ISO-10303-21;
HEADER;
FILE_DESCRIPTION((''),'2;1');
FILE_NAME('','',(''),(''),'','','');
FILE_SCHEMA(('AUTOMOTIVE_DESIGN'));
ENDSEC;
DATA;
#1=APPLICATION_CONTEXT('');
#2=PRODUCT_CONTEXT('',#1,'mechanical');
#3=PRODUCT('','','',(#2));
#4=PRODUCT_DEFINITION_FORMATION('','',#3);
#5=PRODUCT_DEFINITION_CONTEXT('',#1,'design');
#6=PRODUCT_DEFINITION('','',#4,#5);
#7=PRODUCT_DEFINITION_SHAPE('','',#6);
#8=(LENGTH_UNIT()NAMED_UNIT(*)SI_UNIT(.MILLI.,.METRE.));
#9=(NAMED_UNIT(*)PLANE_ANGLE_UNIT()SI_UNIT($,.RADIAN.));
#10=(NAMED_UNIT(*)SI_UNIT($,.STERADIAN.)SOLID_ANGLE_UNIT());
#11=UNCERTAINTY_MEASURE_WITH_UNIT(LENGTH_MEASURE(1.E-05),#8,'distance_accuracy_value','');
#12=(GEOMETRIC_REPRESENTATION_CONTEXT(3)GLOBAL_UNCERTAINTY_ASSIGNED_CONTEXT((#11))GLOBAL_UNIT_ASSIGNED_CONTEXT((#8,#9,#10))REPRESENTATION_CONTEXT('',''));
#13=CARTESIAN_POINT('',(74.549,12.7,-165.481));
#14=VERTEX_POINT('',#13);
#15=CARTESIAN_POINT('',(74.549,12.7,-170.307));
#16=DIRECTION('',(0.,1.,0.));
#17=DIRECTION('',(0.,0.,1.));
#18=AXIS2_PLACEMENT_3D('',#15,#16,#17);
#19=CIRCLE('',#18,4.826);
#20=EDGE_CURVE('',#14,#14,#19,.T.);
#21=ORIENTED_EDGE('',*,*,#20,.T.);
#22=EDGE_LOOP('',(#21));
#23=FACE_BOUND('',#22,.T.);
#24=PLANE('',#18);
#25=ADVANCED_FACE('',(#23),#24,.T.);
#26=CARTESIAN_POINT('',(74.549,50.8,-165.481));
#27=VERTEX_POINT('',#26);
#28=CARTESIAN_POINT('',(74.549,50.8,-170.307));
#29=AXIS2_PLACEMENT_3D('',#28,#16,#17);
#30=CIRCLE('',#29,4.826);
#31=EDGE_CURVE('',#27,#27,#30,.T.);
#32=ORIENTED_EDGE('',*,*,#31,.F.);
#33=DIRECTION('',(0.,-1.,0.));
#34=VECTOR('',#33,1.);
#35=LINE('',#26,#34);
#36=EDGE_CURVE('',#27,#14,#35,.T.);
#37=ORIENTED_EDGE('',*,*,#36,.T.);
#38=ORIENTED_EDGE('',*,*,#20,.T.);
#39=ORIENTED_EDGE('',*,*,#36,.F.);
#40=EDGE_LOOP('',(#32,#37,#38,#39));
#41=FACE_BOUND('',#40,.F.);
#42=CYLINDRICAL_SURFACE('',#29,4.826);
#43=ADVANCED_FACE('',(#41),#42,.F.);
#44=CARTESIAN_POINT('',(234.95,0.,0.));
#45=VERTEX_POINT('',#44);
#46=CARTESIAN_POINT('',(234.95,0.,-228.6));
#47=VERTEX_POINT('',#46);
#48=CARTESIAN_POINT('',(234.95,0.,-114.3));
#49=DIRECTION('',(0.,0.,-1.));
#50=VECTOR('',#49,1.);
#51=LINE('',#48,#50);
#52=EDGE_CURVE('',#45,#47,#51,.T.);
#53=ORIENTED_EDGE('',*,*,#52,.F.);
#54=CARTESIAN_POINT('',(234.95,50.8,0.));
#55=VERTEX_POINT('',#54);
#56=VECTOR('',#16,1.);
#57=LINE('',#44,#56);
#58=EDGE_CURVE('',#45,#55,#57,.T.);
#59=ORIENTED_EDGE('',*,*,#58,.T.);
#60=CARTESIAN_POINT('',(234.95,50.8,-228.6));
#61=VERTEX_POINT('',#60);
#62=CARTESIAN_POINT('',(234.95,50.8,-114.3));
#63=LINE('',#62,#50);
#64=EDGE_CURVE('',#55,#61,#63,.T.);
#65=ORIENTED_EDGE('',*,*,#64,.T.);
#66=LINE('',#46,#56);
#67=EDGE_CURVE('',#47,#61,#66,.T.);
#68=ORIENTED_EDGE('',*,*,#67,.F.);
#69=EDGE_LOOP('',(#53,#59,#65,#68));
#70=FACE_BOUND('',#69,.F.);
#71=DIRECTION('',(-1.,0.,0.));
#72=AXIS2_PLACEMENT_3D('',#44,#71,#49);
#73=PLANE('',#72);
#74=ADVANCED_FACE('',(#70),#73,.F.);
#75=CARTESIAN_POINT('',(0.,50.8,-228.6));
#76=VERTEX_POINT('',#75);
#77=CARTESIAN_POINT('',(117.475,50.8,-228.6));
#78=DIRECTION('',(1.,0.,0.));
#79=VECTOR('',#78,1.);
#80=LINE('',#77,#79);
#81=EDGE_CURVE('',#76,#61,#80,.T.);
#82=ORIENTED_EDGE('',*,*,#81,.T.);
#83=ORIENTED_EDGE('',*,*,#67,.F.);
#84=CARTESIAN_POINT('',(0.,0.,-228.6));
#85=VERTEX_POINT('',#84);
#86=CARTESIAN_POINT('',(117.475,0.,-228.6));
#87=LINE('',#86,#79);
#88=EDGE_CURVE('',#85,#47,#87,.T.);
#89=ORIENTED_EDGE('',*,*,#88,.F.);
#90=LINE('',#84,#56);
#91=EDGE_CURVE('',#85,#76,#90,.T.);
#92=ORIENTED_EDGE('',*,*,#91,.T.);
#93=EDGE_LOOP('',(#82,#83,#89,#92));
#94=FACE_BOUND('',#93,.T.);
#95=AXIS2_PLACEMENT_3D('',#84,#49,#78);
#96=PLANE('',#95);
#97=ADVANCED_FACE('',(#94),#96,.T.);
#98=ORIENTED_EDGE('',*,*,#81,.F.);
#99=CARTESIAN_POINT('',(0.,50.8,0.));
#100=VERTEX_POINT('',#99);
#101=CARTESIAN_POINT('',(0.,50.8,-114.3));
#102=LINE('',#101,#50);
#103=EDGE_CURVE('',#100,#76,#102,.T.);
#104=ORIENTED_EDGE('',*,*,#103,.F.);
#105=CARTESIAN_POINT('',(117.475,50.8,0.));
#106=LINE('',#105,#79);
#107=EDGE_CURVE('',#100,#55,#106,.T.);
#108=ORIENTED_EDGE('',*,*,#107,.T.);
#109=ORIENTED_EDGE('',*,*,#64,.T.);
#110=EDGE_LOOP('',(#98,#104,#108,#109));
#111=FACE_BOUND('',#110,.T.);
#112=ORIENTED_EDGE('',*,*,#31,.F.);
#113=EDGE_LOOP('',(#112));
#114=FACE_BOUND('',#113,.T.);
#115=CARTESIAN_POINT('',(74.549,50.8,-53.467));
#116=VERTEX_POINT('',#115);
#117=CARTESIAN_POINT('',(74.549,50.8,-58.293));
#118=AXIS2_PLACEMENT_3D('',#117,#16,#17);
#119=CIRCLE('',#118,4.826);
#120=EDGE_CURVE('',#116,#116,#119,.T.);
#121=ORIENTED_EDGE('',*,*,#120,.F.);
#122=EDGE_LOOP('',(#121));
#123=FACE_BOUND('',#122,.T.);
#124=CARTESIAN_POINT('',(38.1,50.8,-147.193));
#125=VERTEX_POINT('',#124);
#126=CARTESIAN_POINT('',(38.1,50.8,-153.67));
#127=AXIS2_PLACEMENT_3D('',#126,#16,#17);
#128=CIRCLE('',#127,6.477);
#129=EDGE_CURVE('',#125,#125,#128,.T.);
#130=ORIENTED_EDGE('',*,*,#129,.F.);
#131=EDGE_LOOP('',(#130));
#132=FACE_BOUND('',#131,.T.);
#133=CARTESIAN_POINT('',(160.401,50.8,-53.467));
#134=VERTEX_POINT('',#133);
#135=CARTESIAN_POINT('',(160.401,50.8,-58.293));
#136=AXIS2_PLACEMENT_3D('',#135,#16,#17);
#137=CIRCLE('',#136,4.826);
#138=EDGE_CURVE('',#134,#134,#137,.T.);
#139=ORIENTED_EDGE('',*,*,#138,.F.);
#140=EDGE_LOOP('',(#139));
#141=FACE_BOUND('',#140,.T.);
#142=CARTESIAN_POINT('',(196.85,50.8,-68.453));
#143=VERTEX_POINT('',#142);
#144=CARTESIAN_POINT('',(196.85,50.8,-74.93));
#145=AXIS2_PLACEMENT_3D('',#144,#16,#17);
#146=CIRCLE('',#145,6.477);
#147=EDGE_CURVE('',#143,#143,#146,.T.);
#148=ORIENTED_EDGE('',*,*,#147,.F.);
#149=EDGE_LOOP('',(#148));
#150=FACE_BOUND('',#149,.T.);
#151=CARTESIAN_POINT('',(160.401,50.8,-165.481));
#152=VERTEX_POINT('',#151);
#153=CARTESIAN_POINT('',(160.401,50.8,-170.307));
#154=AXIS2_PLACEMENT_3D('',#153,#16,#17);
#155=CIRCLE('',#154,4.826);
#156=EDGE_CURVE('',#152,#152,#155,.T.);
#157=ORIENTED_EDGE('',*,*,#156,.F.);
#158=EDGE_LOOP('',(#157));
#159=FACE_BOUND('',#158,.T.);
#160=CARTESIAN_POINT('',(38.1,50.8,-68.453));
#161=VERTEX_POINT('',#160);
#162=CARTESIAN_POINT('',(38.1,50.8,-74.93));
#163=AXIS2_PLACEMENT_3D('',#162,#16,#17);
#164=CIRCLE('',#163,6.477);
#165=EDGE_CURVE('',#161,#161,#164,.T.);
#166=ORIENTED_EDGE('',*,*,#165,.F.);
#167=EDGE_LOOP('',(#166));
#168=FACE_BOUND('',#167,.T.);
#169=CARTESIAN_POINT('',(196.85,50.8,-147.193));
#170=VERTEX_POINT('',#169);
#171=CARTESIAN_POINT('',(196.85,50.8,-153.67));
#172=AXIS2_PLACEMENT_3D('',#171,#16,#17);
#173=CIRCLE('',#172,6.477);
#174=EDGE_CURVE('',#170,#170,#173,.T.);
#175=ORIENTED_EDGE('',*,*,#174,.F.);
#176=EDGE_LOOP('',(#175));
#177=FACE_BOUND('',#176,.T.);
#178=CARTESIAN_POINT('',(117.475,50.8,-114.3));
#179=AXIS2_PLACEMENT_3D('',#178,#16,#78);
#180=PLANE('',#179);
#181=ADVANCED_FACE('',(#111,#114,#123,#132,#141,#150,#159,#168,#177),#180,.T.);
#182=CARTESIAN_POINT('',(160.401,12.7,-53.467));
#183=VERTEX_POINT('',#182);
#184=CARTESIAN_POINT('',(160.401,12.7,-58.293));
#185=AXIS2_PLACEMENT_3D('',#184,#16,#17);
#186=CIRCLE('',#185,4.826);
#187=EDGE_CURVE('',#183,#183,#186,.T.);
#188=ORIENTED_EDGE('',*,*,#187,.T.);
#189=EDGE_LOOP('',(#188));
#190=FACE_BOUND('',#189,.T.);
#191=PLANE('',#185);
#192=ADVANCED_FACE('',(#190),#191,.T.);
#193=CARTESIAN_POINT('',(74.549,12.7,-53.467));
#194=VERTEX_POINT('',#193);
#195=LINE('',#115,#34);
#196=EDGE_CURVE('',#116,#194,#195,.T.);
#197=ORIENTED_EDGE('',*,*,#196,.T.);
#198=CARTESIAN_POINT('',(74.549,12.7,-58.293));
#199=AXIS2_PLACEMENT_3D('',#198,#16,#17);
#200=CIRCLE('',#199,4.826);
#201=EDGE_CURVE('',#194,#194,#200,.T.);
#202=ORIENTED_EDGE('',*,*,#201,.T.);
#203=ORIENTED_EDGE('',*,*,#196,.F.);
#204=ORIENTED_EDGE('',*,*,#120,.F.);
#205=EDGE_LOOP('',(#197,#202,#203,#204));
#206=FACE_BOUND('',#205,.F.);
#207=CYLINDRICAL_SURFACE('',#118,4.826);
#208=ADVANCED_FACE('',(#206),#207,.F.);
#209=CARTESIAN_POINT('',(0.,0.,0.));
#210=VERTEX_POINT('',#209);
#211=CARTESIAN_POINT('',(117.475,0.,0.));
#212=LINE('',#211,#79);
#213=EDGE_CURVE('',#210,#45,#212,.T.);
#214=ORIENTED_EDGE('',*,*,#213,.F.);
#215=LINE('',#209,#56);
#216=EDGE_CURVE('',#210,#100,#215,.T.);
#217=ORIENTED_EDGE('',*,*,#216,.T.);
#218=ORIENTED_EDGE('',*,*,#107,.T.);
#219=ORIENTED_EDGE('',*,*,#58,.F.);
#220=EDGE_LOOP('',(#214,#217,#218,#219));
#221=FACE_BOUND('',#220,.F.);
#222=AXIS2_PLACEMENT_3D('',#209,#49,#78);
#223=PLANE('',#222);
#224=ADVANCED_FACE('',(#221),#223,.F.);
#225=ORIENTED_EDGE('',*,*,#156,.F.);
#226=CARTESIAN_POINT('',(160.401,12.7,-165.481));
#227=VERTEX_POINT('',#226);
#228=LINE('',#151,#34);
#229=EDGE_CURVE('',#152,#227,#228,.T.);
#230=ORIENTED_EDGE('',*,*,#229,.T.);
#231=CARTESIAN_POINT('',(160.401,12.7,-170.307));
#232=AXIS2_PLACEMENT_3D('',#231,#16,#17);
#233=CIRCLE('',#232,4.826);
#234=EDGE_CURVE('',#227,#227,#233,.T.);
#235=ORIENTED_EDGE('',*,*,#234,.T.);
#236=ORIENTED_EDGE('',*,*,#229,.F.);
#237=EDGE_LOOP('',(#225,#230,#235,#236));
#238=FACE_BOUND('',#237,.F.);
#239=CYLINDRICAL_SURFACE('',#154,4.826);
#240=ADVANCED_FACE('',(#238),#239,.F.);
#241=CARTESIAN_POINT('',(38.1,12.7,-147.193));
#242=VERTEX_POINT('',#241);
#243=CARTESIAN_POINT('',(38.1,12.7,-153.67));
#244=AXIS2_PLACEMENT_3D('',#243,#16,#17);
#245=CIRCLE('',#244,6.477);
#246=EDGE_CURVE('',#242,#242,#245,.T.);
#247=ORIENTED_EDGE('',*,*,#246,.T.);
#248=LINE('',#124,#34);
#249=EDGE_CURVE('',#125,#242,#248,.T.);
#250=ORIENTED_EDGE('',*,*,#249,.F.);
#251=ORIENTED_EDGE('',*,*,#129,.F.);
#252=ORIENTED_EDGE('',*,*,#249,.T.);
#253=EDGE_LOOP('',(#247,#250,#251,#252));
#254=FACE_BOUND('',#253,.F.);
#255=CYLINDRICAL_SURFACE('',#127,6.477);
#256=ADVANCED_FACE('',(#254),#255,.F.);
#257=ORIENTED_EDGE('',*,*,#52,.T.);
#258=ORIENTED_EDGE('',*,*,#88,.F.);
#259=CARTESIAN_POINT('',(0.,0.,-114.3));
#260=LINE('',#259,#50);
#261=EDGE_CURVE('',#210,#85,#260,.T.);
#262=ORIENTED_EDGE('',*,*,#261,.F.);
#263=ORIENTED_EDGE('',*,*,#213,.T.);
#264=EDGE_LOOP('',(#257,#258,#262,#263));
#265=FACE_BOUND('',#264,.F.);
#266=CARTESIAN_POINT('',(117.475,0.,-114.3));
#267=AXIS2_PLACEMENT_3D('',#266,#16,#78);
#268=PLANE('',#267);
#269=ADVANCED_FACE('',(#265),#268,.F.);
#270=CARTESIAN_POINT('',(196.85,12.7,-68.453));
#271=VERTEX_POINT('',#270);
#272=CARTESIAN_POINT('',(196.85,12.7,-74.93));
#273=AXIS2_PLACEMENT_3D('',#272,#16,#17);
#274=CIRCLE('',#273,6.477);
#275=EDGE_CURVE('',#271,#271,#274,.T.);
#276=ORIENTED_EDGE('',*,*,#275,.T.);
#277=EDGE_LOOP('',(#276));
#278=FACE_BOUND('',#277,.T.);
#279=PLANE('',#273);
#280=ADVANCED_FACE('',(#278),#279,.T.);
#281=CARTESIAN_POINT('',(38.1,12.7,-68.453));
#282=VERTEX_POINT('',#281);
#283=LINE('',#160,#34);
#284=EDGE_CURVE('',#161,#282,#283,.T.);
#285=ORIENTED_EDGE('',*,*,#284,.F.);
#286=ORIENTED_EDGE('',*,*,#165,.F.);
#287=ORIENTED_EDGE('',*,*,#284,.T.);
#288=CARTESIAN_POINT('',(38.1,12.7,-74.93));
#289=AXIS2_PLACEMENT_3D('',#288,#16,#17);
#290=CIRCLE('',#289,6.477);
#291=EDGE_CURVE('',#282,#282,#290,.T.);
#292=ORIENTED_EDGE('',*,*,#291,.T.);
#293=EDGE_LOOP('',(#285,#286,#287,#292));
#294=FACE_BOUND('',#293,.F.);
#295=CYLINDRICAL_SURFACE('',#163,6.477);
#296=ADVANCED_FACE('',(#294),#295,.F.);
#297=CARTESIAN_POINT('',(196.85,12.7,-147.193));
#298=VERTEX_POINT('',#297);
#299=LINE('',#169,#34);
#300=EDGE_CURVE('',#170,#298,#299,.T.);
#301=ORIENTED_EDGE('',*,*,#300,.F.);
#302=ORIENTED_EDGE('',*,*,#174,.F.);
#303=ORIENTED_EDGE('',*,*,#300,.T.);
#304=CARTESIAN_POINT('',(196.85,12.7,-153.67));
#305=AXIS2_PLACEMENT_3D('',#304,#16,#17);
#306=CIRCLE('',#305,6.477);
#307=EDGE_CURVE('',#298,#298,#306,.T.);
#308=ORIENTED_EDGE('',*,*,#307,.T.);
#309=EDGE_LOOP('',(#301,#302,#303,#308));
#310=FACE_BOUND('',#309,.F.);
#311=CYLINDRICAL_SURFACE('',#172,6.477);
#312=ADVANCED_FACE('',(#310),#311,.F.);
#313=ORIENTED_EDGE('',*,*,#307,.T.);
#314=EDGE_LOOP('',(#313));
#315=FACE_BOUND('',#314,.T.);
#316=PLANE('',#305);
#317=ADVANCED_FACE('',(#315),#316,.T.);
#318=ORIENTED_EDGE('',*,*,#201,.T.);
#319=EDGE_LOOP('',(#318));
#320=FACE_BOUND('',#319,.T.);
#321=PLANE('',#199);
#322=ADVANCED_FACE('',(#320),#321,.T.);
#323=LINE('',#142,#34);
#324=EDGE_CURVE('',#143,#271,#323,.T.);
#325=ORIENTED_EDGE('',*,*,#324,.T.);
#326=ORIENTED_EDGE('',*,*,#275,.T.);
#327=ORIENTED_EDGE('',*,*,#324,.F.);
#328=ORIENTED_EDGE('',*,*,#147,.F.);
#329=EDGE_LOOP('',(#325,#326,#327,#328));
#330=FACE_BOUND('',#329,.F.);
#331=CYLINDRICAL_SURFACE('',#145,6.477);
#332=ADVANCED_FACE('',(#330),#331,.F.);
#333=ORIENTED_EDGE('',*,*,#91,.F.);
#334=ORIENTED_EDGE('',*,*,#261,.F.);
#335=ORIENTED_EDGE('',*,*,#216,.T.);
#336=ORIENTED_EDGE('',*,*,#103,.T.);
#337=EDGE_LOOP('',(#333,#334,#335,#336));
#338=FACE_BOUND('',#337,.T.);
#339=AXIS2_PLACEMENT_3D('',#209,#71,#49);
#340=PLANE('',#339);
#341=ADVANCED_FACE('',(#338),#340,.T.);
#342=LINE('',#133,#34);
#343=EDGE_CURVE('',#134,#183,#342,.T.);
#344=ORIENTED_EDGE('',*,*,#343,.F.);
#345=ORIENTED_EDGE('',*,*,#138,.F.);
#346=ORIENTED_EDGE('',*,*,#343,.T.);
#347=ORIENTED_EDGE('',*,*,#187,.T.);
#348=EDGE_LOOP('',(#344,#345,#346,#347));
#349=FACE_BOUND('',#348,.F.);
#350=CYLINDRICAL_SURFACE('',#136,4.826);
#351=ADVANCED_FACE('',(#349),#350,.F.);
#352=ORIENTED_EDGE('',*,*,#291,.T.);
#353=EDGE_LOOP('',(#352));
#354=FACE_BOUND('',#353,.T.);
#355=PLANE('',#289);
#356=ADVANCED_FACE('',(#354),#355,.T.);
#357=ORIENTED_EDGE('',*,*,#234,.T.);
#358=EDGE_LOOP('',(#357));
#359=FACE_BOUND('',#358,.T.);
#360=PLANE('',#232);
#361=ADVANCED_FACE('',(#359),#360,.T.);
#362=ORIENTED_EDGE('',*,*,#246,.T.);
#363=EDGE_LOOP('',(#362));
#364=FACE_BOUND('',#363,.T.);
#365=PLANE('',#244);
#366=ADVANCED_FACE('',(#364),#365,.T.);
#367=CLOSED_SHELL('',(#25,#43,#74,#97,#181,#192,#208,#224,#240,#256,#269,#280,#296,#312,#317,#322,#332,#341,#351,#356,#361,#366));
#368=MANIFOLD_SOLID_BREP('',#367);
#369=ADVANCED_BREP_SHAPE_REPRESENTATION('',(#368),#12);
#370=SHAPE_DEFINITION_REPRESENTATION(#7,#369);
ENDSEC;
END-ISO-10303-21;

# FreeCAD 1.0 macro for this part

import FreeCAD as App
import Part
import Sketcher
Q = App.Units.Quantity

doc = App.newDocument("Part")
body = doc.addObject("PartDesign::Body", "Body")

sketch1 = body.newObject("Sketcher::SketchObject", "Sketch")
sketch1.AttachmentSupport = (doc.getObject("XZ_Plane"), [""])
sketch1.MapMode = "FlatFace"
sketch1.addGeometry(Part.LineSegment(App.Vector(0, -229, 0), App.Vector(0, 0, 0)), False)
sketch1.addGeometry(Part.LineSegment(App.Vector(0, 0, 0), App.Vector(235, 0, 0)), False)
sketch1.addGeometry(Part.LineSegment(App.Vector(235, 0, 0), App.Vector(235, -229, 0)), False)
sketch1.addGeometry(Part.LineSegment(App.Vector(235, -229, 0), App.Vector(0, -229, 0)), False)
sketch1.addConstraint(Sketcher.Constraint("Coincident", 0, 2, 1, 1))
sketch1.addConstraint(Sketcher.Constraint("Coincident", 1, 2, 2, 1))
sketch1.addConstraint(Sketcher.Constraint("Coincident", 2, 2, 3, 1))
sketch1.addConstraint(Sketcher.Constraint("Coincident", 3, 2, 0, 1))
sketch1.addConstraint(Sketcher.Constraint("Vertical", 0))
sketch1.addConstraint(Sketcher.Constraint("Horizontal", 1))
sketch1.addConstraint(Sketcher.Constraint("Vertical", 2))
sketch1.addConstraint(Sketcher.Constraint("Horizontal", 3))
sketch1.addConstraint(Sketcher.Constraint("Coincident", 0, 2, -1, 1))
sketch1.addConstraint(Sketcher.Constraint("DistanceY", 0, 1, 0, 2, Q("9 in")))
sketch1.addConstraint(Sketcher.Constraint("DistanceX", 1, 1, 1, 2, Q("9.25 in")))
pad1 = body.newObject("PartDesign::Pad", "Pad")
pad1.Profile = sketch1
pad1.Length = Q("2 in")
pad1.Reversed = True

sketch2 = body.newObject("Sketcher::SketchObject", "Sketch001")
sketch2.AttachmentSupport = (doc.getObject("XZ_Plane"), [""])
sketch2.MapMode = "FlatFace"
sketch2.AttachmentOffset = App.Placement(App.Vector(0, 0, -2 * 25.4), App.Rotation())
sketch2.addGeometry(Part.Circle(App.Vector(74.5, -170.3, 0), App.Vector(0, 0, 1), 4.8), False)
sketch2.addGeometry(Part.Circle(App.Vector(160.4, -170.3, 0), App.Vector(0, 0, 1), 4.8), False)
sketch2.addGeometry(Part.Circle(App.Vector(160.4, -58.3, 0), App.Vector(0, 0, 1), 4.8), False)
sketch2.addGeometry(Part.Circle(App.Vector(74.5, -58.3, 0), App.Vector(0, 0, 1), 4.8), False)
sketch2.addConstraint(Sketcher.Constraint("Equal", 0, 1))
sketch2.addConstraint(Sketcher.Constraint("Equal", 1, 2))
sketch2.addConstraint(Sketcher.Constraint("Equal", 2, 3))
sketch2.addConstraint(Sketcher.Constraint("Horizontal", 0, 3, 1, 3))
sketch2.addConstraint(Sketcher.Constraint("Horizontal", 2, 3, 3, 3))
sketch2.addConstraint(Sketcher.Constraint("Vertical", 1, 3, 2, 3))
sketch2.addConstraint(Sketcher.Constraint("Vertical", 0, 3, 3, 3))
sketch2.addConstraint(Sketcher.Constraint("Diameter", 0, Q("0.38 in")))
sketch2.addConstraint(Sketcher.Constraint("DistanceX", 0, 3, 1, 3, Q("3.38 in")))
sketch2.addConstraint(Sketcher.Constraint("DistanceY", 1, 3, 2, 3, Q("4.41 in")))
sketch2.addConstraint(Sketcher.Constraint("DistanceX", -1, 1, 0, 3, Q("2.935 in")))
sketch2.addConstraint(Sketcher.Constraint("DistanceY", 0, 3, -1, 1, Q("6.705 in")))
pocket1 = body.newObject("PartDesign::Pocket", "Pocket")
pocket1.Profile = sketch2
pocket1.Length = Q("1.5 in")
pocket1.Reversed = True

sketch3 = body.newObject("Sketcher::SketchObject", "Sketch002")
sketch3.AttachmentSupport = (doc.getObject("XZ_Plane"), [""])
sketch3.MapMode = "FlatFace"
sketch3.AttachmentOffset = App.Placement(App.Vector(0, 0, -2 * 25.4), App.Rotation())
sketch3.addGeometry(Part.Circle(App.Vector(197, -154, 0), App.Vector(0, 0, 1), 6), False)
sketch3.addGeometry(Part.Circle(App.Vector(197, -75, 0), App.Vector(0, 0, 1), 6), False)
sketch3.addGeometry(Part.Circle(App.Vector(38, -75, 0), App.Vector(0, 0, 1), 6), False)
sketch3.addGeometry(Part.Circle(App.Vector(38, -154, 0), App.Vector(0, 0, 1), 6), False)
sketch3.addConstraint(Sketcher.Constraint("Equal", 0, 1))
sketch3.addConstraint(Sketcher.Constraint("Equal", 1, 2))
sketch3.addConstraint(Sketcher.Constraint("Equal", 2, 3))
sketch3.addConstraint(Sketcher.Constraint("Horizontal", 1, 3, 2, 3))
sketch3.addConstraint(Sketcher.Constraint("Horizontal", 0, 3, 3, 3))
sketch3.addConstraint(Sketcher.Constraint("Vertical", 0, 3, 1, 3))
sketch3.addConstraint(Sketcher.Constraint("Vertical", 2, 3, 3, 3))
sketch3.addConstraint(Sketcher.Constraint("Diameter", 0, Q("0.51 in")))
sketch3.addConstraint(Sketcher.Constraint("DistanceX", -1, 1, 2, 3, Q("1.5 in")))
sketch3.addConstraint(Sketcher.Constraint("DistanceY", 0, 3, 1, 3, Q("3.1 in")))
sketch3.addConstraint(Sketcher.Constraint("DistanceX", -1, 1, 0, 3, Q("7.75 in")))
sketch3.addConstraint(Sketcher.Constraint("DistanceY", 0, 3, -1, 1, Q("6.05 in")))
pocket2 = body.newObject("PartDesign::Pocket", "Pocket001")
pocket2.Profile = sketch3
pocket2.Length = Q("1.5 in")
pocket2.Reversed = True

doc.recompute()
